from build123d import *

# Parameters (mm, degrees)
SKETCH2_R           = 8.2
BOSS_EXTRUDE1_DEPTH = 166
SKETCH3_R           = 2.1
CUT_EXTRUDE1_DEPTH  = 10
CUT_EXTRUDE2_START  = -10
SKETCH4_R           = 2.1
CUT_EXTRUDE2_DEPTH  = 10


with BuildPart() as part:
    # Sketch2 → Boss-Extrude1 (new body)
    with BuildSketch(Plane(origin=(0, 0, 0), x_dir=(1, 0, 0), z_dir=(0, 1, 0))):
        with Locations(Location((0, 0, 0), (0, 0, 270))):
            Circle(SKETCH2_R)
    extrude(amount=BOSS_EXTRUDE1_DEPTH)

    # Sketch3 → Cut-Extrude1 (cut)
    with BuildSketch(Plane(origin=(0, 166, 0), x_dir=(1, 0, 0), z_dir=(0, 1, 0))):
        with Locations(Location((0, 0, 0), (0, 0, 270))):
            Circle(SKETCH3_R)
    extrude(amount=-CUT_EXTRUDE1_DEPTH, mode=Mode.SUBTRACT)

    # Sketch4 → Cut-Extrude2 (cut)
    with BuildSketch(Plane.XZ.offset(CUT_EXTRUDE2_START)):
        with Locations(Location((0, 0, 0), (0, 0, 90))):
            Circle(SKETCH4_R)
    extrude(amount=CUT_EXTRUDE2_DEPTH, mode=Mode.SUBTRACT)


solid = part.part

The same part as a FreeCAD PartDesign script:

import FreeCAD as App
import Part
import Sketcher

V = App.Vector
Q = App.Units.Quantity

doc = App.newDocument("Part")
body = doc.addObject("PartDesign::Body", "Body")

sketch1 = doc.addObject("Sketcher::SketchObject", "Sketch")
body.addObject(sketch1)
sketch1.AttachmentSupport = (doc.XZ_Plane, [""])
sketch1.MapMode = "FlatFace"
sketch1.addGeometry(Part.Circle(V(0, 0, 0), V(0, 0, 1), 8.2), False)
sketch1.addConstraint([
    Sketcher.Constraint("Coincident", 0, 3, -1, 1),
    Sketcher.Constraint("Diameter", 0, Q("16.4 mm")),
])
pad1 = doc.addObject("PartDesign::Pad", "Pad")
body.addObject(pad1)
pad1.Profile = sketch1
pad1.Length = 166
pad1.Reversed = True

sketch2 = doc.addObject("Sketcher::SketchObject", "Sketch001")
body.addObject(sketch2)
sketch2.AttachmentSupport = (doc.XZ_Plane, [""])
sketch2.MapMode = "FlatFace"
sketch2.AttachmentOffset = App.Placement(V(0, 0, -166), App.Rotation())
sketch2.addGeometry(Part.Circle(V(0, 0, 0), V(0, 0, 1), 2.1), False)
sketch2.addConstraint([
    Sketcher.Constraint("Coincident", 0, 3, -1, 1),
    Sketcher.Constraint("Diameter", 0, Q("4.2 mm")),
])
pocket1 = doc.addObject("PartDesign::Pocket", "Pocket")
body.addObject(pocket1)
pocket1.Profile = sketch2
pocket1.Length = 10
pocket1.Reversed = True

sketch3 = doc.addObject("Sketcher::SketchObject", "Sketch002")
body.addObject(sketch3)
sketch3.AttachmentSupport = (doc.XZ_Plane, [""])
sketch3.MapMode = "FlatFace"
sketch3.AttachmentOffset = App.Placement(V(0, 0, -10), App.Rotation())
sketch3.addGeometry(Part.Circle(V(0, 0, 0), V(0, 0, 1), 2.1), False)
sketch3.addConstraint([
    Sketcher.Constraint("Coincident", 0, 3, -1, 1),
    Sketcher.Constraint("Diameter", 0, Q("4.2 mm")),
])
pocket2 = doc.addObject("PartDesign::Pocket", "Pocket001")
body.addObject(pocket2)
pocket2.Profile = sketch3
pocket2.Length = 10
pocket2.Reversed = True

doc.recompute()
